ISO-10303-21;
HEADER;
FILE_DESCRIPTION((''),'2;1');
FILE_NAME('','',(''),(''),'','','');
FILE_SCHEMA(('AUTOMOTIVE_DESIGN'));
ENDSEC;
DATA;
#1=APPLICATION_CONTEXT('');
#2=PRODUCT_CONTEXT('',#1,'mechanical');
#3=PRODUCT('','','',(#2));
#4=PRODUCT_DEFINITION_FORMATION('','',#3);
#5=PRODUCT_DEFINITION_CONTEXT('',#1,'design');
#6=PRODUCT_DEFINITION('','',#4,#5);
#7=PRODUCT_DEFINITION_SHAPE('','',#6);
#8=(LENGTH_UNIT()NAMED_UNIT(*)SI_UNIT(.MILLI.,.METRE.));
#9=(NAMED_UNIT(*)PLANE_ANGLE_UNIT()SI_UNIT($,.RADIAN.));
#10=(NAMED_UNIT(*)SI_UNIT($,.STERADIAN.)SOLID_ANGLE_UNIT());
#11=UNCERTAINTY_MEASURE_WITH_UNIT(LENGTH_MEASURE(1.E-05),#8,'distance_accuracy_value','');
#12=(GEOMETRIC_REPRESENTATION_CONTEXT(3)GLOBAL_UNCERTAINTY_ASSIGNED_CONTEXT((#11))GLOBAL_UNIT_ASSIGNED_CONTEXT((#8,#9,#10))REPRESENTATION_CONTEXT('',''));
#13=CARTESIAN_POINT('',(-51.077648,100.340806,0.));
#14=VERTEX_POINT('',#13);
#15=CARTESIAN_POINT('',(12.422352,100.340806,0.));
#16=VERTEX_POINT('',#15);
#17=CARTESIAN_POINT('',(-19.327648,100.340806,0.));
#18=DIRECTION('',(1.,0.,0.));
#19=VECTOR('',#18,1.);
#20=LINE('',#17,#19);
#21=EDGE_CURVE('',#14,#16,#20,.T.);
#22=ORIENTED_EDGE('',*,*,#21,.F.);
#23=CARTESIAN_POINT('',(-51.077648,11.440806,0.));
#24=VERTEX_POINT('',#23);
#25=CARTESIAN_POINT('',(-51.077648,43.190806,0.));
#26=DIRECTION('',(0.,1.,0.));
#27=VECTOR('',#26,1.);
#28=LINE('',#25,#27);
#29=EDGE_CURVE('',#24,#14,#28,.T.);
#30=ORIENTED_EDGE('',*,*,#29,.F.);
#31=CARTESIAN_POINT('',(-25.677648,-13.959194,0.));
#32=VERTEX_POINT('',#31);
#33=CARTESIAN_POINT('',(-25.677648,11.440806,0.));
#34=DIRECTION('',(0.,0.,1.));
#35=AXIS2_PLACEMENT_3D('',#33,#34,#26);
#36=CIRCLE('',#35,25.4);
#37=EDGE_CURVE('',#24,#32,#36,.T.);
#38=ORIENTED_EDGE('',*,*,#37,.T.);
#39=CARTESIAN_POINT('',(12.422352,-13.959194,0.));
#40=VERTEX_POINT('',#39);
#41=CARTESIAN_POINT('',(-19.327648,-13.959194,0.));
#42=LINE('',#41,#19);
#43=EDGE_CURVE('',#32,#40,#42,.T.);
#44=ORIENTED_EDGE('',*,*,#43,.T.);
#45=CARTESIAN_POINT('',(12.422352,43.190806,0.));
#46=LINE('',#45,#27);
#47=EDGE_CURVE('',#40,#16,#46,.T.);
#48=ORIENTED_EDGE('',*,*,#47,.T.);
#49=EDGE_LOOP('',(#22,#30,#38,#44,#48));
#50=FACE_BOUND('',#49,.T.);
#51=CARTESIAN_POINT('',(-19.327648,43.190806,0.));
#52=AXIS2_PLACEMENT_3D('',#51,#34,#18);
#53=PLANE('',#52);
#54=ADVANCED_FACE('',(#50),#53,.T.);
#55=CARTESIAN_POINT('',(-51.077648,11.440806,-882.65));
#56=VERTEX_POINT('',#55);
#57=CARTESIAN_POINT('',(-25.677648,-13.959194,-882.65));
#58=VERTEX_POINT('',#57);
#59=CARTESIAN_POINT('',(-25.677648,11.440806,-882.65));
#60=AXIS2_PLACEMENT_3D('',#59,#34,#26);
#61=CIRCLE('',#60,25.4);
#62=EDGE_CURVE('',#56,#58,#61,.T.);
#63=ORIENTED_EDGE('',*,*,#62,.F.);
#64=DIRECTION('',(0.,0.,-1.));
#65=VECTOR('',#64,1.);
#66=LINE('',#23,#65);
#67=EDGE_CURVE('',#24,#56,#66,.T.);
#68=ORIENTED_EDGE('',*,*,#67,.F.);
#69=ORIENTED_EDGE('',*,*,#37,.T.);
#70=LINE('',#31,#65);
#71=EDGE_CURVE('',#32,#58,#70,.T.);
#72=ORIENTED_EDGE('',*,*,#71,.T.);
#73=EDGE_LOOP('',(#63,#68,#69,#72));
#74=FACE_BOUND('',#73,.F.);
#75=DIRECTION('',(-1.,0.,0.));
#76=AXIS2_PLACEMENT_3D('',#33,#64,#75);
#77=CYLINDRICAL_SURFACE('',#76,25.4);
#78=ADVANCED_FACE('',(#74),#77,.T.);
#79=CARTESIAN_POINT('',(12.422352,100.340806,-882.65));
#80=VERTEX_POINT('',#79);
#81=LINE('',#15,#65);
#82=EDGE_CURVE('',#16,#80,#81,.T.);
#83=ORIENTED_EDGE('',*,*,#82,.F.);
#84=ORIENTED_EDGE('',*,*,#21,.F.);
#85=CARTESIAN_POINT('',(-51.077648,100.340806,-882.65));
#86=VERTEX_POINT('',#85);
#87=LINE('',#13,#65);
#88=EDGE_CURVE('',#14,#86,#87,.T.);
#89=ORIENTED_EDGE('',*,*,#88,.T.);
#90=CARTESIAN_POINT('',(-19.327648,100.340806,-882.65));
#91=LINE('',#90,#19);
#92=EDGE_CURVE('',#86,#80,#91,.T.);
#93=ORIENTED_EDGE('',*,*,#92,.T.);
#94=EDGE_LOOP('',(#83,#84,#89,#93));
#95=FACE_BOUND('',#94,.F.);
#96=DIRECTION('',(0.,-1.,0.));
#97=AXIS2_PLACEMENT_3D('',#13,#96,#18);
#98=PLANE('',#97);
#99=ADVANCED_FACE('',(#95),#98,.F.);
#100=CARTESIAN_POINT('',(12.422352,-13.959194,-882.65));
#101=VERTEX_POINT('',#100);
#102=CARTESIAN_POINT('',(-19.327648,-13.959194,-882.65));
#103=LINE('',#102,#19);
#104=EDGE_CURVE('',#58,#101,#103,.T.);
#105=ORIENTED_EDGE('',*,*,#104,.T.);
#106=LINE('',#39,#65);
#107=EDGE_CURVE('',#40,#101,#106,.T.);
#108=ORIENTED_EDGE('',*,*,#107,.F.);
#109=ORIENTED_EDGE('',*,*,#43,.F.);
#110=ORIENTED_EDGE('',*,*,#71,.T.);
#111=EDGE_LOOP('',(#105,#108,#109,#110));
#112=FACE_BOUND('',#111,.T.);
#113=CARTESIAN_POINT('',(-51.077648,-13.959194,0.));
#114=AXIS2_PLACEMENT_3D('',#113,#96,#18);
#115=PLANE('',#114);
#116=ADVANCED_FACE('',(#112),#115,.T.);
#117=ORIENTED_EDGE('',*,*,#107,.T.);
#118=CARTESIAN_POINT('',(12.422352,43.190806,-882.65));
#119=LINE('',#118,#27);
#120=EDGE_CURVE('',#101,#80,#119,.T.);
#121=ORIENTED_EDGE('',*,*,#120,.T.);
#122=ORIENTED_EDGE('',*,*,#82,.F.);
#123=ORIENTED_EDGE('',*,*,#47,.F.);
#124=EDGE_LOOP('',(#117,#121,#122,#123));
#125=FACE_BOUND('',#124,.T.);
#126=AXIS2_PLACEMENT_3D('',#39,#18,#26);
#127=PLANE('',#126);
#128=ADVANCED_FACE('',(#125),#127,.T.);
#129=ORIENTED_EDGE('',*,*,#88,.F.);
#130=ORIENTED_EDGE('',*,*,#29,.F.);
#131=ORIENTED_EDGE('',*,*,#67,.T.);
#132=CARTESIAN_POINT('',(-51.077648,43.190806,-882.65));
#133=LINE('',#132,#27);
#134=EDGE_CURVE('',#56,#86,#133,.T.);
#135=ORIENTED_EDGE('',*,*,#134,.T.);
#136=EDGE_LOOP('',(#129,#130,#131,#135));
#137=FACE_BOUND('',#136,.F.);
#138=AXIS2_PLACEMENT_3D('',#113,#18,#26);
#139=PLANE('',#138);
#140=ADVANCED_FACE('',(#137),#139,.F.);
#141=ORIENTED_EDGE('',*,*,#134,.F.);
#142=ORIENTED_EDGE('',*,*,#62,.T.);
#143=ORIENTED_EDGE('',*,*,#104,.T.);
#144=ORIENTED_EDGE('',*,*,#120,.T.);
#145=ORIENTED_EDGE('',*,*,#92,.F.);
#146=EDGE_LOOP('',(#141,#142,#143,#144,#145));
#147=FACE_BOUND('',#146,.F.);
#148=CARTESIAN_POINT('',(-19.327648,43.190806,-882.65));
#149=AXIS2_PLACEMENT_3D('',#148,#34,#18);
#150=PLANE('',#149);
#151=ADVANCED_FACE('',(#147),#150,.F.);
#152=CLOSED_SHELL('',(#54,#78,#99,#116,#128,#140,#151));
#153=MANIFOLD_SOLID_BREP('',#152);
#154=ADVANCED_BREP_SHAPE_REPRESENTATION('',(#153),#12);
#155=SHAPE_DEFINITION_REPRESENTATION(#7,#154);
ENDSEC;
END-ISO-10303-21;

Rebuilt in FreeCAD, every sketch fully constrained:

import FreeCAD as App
import Part
import Sketcher
from FreeCAD import Vector
Q = App.Units.Quantity


def edges_at(feature, points):
    """Names of the edges that pass closest to the given points."""
    edges = feature.Shape.Edges
    near = lambda p: min(range(len(edges)), key=lambda i: edges[i].distToShape(Part.Vertex(*p))[0])
    return sorted({f"Edge{near(p) + 1}" for p in points})

doc = App.newDocument("Part")
body = doc.addObject("PartDesign::Body", "Body")

# Sketch on XY plane
sketch1 = doc.addObject("Sketcher::SketchObject", "Sketch")
body.addObject(sketch1)
sketch1.AttachmentSupport = (doc.XY_Plane, [""])
sketch1.MapMode = "FlatFace"
sketch1.addGeometry(Part.LineSegment(Vector(-51, 100, 0), Vector(-51, -14, 0)), False)
sketch1.addGeometry(Part.LineSegment(Vector(-51, -14, 0), Vector(12, -14, 0)), False)
sketch1.addGeometry(Part.LineSegment(Vector(12, -14, 0), Vector(12, 100, 0)), False)
sketch1.addGeometry(Part.LineSegment(Vector(12, 100, 0), Vector(-51, 100, 0)), False)
sketch1.addConstraint(Sketcher.Constraint("Coincident", 0, 2, 1, 1))
sketch1.addConstraint(Sketcher.Constraint("Coincident", 1, 2, 2, 1))
sketch1.addConstraint(Sketcher.Constraint("Coincident", 2, 2, 3, 1))
sketch1.addConstraint(Sketcher.Constraint("Coincident", 3, 2, 0, 1))
sketch1.addConstraint(Sketcher.Constraint("Vertical", 0))
sketch1.addConstraint(Sketcher.Constraint("Horizontal", 1))
sketch1.addConstraint(Sketcher.Constraint("Vertical", 2))
sketch1.addConstraint(Sketcher.Constraint("Horizontal", 3))
sketch1.addConstraint(Sketcher.Constraint("DistanceX", 1, 1, 1, 2, Q("2.5 in")))
sketch1.addConstraint(Sketcher.Constraint("DistanceY", 0, 2, 0, 1, Q("4.5 in")))
sketch1.addConstraint(Sketcher.Constraint("DistanceX", 0, 2, -1, 1, 51.077648))
sketch1.addConstraint(Sketcher.Constraint("DistanceY", 0, 2, -1, 1, 13.959194))
pad1 = doc.addObject("PartDesign::Pad", "Pad")
body.addObject(pad1)
pad1.Profile = sketch1
pad1.Length = Q("34.75 in")
pad1.Reversed = True
doc.recompute()

fillet = doc.addObject("PartDesign::Fillet", "Fillet")
body.addObject(fillet)
fillet.Base = (pad1, edges_at(pad1, [(-51.078, -13.959, -441.325)]))
fillet.Radius = Q("1 in")

doc.recompute()
